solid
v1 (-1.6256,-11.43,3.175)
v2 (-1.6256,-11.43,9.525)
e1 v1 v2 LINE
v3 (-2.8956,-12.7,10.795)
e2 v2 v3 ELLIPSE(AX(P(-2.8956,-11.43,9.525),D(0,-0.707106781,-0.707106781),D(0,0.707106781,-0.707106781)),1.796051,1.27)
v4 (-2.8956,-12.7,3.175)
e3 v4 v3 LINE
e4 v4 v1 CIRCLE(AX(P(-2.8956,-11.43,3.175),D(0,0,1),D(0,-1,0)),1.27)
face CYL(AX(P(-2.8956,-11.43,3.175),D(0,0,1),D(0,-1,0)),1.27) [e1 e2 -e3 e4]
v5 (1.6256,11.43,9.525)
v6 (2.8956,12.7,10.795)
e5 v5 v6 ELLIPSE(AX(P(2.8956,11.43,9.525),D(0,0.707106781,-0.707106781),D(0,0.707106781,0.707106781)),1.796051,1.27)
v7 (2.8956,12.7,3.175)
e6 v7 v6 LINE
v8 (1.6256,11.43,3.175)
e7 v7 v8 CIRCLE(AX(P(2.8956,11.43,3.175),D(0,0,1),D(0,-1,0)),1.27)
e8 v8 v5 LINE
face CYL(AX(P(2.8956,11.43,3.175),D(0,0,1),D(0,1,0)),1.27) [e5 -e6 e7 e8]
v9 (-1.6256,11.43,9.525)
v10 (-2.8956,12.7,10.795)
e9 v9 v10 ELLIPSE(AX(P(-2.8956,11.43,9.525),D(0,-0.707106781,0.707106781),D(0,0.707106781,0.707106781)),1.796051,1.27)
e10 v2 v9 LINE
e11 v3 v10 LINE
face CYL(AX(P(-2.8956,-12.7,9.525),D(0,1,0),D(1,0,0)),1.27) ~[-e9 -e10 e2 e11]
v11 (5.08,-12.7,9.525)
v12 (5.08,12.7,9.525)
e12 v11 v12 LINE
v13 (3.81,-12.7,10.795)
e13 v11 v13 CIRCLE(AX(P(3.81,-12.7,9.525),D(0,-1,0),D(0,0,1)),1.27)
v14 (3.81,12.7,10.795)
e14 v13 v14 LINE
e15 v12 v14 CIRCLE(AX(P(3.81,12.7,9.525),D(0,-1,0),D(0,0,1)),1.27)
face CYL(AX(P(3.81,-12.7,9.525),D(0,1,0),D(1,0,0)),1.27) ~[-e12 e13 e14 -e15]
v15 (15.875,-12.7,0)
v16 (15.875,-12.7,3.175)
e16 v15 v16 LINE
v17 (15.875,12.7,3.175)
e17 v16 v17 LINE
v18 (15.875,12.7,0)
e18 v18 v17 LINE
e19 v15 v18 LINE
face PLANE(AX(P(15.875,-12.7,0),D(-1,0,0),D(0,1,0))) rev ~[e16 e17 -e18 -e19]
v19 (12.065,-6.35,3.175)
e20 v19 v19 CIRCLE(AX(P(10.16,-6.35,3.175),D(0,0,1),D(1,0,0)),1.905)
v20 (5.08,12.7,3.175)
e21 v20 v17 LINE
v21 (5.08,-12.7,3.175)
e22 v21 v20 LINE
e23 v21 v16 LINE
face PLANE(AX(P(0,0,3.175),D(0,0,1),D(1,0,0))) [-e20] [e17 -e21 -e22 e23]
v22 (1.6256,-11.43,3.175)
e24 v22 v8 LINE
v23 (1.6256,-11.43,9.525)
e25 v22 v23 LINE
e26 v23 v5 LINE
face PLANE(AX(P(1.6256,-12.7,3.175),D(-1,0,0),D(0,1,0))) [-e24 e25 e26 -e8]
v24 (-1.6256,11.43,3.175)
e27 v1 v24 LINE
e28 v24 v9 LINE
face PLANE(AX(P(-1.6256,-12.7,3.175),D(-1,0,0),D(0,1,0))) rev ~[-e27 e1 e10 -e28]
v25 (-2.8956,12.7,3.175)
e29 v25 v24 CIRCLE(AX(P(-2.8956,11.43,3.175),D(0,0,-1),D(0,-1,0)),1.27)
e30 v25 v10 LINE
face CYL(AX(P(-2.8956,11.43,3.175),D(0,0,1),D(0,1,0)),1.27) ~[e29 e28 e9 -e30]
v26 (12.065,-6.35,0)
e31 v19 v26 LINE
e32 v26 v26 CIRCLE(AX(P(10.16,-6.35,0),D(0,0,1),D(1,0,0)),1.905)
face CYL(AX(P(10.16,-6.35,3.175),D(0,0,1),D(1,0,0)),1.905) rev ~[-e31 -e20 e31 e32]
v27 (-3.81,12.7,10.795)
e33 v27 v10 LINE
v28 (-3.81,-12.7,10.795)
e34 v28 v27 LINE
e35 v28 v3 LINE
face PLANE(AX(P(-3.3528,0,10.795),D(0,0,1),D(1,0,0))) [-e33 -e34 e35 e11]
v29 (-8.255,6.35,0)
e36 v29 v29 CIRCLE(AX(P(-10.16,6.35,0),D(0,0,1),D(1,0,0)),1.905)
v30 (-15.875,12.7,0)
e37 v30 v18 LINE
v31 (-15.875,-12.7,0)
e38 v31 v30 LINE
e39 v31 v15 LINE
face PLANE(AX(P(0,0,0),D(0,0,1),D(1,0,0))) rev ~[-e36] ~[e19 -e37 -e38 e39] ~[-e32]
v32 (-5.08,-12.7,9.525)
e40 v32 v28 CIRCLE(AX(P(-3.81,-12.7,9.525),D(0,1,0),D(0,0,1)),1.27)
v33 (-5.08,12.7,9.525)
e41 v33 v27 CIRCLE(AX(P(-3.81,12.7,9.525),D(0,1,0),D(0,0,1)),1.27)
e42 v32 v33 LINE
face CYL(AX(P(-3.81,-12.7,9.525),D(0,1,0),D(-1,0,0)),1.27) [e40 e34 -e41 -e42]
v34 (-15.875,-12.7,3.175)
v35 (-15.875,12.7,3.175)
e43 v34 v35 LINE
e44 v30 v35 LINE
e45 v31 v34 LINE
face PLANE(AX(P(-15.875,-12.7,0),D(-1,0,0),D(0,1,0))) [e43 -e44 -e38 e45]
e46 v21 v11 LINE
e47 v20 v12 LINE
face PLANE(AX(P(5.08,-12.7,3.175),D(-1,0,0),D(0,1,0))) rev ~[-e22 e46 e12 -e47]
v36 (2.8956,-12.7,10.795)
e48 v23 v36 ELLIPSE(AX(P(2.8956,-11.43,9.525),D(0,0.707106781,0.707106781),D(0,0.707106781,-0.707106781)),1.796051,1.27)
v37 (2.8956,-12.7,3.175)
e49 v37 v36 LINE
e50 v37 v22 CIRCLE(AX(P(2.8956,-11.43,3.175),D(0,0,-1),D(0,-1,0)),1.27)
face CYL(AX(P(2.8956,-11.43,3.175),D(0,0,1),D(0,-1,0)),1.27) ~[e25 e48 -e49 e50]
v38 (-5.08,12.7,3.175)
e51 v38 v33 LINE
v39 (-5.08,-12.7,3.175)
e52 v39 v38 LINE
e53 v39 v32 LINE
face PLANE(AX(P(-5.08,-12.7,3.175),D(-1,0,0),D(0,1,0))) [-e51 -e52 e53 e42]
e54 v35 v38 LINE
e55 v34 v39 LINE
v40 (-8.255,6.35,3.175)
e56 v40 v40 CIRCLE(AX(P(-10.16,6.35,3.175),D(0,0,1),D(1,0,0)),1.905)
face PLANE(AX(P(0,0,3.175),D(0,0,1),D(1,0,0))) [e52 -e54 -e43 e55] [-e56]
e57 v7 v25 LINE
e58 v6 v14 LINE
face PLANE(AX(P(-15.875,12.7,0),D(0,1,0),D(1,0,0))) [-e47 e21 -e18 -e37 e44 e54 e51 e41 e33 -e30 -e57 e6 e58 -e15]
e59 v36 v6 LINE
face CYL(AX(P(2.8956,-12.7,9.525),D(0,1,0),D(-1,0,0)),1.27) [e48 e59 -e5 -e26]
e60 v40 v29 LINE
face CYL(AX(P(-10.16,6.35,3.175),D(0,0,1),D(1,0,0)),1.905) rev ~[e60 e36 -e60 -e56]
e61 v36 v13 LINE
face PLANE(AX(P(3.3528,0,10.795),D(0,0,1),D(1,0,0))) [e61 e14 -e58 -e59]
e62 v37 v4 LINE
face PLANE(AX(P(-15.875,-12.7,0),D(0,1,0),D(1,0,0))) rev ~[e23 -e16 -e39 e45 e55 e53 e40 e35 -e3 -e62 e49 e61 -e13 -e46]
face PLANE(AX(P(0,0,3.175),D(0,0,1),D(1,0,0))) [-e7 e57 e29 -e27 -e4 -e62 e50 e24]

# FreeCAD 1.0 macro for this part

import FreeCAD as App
import Part
import Sketcher
Q = App.Units.Quantity


def edges_at(feature, points):
    """Names of the edges that pass closest to the given points."""
    edges = feature.Shape.Edges
    near = lambda p: min(range(len(edges)), key=lambda i: edges[i].distToShape(Part.Vertex(*p))[0])
    return sorted({f"Edge{near(p) + 1}" for p in points})


def add_polygon(sketch, points):
    """Adds a closed chain of lines whose ends are joined by coincident constraints."""
    first, n = sketch.GeometryCount, len(points)
    for a, b in zip(points, points[1:] + points[:1]):
        sketch.addGeometry(Part.LineSegment(App.Vector(*a, 0), App.Vector(*b, 0)), False)
    for i in range(n):
        sketch.addConstraint(Sketcher.Constraint("Coincident", first + i, 2, first + (i + 1) % n, 1))

doc = App.newDocument("Part")
body = doc.addObject("PartDesign::Body", "Body")

# Sketch on XY plane
sketch1 = body.newObject("Sketcher::SketchObject", "Sketch")
sketch1.AttachmentSupport = (doc.getObject("XY_Plane"), [""])
sketch1.MapMode = "FlatFace"
add_polygon(sketch1, [(-16, 13), (-16, -13), (16, -13), (16, 13)])  # lines 0-3
sketch1.addConstraint([
    Sketcher.Constraint("Vertical", 0),
    Sketcher.Constraint("Horizontal", 1),
    Sketcher.Constraint("Vertical", 2),
    Sketcher.Constraint("Horizontal", 3),
    Sketcher.Constraint("Symmetric", 0, 2, 2, 2, -1, 1),
    Sketcher.Constraint("DistanceY", 0, 2, 0, 1, Q("1 in")),
    Sketcher.Constraint("DistanceX", 1, 1, 1, 2, Q("1.25 in")),
])
pad1 = body.newObject("PartDesign::Pad", "Pad")
pad1.Profile = sketch1
pad1.Length = Q("0.125 in")

# Sketch on XY plane
sketch2 = body.newObject("Sketcher::SketchObject", "Sketch001")
sketch2.AttachmentSupport = (doc.getObject("XY_Plane"), [""])
sketch2.MapMode = "FlatFace"
sketch2.AttachmentOffset = App.Placement(App.Vector(0, 0, 0.125 * 25.4), App.Rotation())
add_polygon(sketch2, [(-5.1, 12.7), (-5.1, -12.7), (-1.6, -12.7), (-1.6, 12.7)])  # lines 0-3
add_polygon(sketch2, [(1.6, 12.7), (1.6, -12.7), (5.1, -12.7), (5.1, 12.7)])  # lines 4-7
sketch2.addConstraint([
    Sketcher.Constraint("Vertical", 0),
    Sketcher.Constraint("Horizontal", 1),
    Sketcher.Constraint("Vertical", 2),
    Sketcher.Constraint("Horizontal", 3),
    Sketcher.Constraint("Vertical", 4),
    Sketcher.Constraint("Horizontal", 5),
    Sketcher.Constraint("Vertical", 6),
    Sketcher.Constraint("Horizontal", 7),
    Sketcher.Constraint("Symmetric", 2, 2, 4, 2, -1, 1),
    Sketcher.Constraint("Symmetric", 0, 2, 6, 2, -1, 1),
    Sketcher.Constraint("Horizontal", 1, 2, 4, 2),
    Sketcher.Constraint("DistanceY", 0, 2, 0, 1, Q("1 in")),
    Sketcher.Constraint("DistanceX", 0, 2, -1, 1, Q("0.2 in")),
    Sketcher.Constraint("DistanceX", 1, 1, 1, 2, Q("0.136 in")),
])
pad2 = body.newObject("PartDesign::Pad", "Pad001")
pad2.Profile = sketch2
pad2.Length = Q("0.3 in")
doc.recompute()

fillet = body.newObject("PartDesign::Fillet", "Fillet")
fillet.Base = (pad2, edges_at(pad2, [
    (-1.626, 0, 10.795),
    (-5.08, 0, 10.795),
    (1.626, 0, 10.795),
    (5.08, 0, 10.795),
    (1.626, 12.7, 6.985),
    (-1.626, 12.7, 6.985),
    (1.626, -12.7, 6.985),
    (-1.626, -12.7, 6.985),
]))
fillet.Radius = Q("0.05 in")

# Sketch on XY plane
sketch3 = body.newObject("Sketcher::SketchObject", "Sketch002")
sketch3.AttachmentSupport = (doc.getObject("XY_Plane"), [""])
sketch3.MapMode = "FlatFace"
sketch3.AttachmentOffset = App.Placement(App.Vector(0, 0, 0.125 * 25.4), App.Rotation())
sketch3.addGeometry([
    Part.Circle(App.Vector(-10.2, 6.3, 0), App.Vector(0, 0, 1), 1.9),
    Part.Circle(App.Vector(10.2, -6.3, 0), App.Vector(0, 0, 1), 1.9),
], False)
sketch3.addConstraint([
    Sketcher.Constraint("Equal", 0, 1),
    Sketcher.Constraint("Symmetric", 0, 3, 1, 3, -1, 1),
    Sketcher.Constraint("Diameter", 0, Q("0.15 in")),
    Sketcher.Constraint("DistanceX", 0, 3, -1, 1, Q("0.4 in")),
    Sketcher.Constraint("DistanceY", 1, 3, 0, 3, Q("0.5 in")),
])
pocket1 = body.newObject("PartDesign::Pocket", "Pocket")
pocket1.Profile = sketch3
pocket1.Type = "ThroughAll"

doc.recompute()
